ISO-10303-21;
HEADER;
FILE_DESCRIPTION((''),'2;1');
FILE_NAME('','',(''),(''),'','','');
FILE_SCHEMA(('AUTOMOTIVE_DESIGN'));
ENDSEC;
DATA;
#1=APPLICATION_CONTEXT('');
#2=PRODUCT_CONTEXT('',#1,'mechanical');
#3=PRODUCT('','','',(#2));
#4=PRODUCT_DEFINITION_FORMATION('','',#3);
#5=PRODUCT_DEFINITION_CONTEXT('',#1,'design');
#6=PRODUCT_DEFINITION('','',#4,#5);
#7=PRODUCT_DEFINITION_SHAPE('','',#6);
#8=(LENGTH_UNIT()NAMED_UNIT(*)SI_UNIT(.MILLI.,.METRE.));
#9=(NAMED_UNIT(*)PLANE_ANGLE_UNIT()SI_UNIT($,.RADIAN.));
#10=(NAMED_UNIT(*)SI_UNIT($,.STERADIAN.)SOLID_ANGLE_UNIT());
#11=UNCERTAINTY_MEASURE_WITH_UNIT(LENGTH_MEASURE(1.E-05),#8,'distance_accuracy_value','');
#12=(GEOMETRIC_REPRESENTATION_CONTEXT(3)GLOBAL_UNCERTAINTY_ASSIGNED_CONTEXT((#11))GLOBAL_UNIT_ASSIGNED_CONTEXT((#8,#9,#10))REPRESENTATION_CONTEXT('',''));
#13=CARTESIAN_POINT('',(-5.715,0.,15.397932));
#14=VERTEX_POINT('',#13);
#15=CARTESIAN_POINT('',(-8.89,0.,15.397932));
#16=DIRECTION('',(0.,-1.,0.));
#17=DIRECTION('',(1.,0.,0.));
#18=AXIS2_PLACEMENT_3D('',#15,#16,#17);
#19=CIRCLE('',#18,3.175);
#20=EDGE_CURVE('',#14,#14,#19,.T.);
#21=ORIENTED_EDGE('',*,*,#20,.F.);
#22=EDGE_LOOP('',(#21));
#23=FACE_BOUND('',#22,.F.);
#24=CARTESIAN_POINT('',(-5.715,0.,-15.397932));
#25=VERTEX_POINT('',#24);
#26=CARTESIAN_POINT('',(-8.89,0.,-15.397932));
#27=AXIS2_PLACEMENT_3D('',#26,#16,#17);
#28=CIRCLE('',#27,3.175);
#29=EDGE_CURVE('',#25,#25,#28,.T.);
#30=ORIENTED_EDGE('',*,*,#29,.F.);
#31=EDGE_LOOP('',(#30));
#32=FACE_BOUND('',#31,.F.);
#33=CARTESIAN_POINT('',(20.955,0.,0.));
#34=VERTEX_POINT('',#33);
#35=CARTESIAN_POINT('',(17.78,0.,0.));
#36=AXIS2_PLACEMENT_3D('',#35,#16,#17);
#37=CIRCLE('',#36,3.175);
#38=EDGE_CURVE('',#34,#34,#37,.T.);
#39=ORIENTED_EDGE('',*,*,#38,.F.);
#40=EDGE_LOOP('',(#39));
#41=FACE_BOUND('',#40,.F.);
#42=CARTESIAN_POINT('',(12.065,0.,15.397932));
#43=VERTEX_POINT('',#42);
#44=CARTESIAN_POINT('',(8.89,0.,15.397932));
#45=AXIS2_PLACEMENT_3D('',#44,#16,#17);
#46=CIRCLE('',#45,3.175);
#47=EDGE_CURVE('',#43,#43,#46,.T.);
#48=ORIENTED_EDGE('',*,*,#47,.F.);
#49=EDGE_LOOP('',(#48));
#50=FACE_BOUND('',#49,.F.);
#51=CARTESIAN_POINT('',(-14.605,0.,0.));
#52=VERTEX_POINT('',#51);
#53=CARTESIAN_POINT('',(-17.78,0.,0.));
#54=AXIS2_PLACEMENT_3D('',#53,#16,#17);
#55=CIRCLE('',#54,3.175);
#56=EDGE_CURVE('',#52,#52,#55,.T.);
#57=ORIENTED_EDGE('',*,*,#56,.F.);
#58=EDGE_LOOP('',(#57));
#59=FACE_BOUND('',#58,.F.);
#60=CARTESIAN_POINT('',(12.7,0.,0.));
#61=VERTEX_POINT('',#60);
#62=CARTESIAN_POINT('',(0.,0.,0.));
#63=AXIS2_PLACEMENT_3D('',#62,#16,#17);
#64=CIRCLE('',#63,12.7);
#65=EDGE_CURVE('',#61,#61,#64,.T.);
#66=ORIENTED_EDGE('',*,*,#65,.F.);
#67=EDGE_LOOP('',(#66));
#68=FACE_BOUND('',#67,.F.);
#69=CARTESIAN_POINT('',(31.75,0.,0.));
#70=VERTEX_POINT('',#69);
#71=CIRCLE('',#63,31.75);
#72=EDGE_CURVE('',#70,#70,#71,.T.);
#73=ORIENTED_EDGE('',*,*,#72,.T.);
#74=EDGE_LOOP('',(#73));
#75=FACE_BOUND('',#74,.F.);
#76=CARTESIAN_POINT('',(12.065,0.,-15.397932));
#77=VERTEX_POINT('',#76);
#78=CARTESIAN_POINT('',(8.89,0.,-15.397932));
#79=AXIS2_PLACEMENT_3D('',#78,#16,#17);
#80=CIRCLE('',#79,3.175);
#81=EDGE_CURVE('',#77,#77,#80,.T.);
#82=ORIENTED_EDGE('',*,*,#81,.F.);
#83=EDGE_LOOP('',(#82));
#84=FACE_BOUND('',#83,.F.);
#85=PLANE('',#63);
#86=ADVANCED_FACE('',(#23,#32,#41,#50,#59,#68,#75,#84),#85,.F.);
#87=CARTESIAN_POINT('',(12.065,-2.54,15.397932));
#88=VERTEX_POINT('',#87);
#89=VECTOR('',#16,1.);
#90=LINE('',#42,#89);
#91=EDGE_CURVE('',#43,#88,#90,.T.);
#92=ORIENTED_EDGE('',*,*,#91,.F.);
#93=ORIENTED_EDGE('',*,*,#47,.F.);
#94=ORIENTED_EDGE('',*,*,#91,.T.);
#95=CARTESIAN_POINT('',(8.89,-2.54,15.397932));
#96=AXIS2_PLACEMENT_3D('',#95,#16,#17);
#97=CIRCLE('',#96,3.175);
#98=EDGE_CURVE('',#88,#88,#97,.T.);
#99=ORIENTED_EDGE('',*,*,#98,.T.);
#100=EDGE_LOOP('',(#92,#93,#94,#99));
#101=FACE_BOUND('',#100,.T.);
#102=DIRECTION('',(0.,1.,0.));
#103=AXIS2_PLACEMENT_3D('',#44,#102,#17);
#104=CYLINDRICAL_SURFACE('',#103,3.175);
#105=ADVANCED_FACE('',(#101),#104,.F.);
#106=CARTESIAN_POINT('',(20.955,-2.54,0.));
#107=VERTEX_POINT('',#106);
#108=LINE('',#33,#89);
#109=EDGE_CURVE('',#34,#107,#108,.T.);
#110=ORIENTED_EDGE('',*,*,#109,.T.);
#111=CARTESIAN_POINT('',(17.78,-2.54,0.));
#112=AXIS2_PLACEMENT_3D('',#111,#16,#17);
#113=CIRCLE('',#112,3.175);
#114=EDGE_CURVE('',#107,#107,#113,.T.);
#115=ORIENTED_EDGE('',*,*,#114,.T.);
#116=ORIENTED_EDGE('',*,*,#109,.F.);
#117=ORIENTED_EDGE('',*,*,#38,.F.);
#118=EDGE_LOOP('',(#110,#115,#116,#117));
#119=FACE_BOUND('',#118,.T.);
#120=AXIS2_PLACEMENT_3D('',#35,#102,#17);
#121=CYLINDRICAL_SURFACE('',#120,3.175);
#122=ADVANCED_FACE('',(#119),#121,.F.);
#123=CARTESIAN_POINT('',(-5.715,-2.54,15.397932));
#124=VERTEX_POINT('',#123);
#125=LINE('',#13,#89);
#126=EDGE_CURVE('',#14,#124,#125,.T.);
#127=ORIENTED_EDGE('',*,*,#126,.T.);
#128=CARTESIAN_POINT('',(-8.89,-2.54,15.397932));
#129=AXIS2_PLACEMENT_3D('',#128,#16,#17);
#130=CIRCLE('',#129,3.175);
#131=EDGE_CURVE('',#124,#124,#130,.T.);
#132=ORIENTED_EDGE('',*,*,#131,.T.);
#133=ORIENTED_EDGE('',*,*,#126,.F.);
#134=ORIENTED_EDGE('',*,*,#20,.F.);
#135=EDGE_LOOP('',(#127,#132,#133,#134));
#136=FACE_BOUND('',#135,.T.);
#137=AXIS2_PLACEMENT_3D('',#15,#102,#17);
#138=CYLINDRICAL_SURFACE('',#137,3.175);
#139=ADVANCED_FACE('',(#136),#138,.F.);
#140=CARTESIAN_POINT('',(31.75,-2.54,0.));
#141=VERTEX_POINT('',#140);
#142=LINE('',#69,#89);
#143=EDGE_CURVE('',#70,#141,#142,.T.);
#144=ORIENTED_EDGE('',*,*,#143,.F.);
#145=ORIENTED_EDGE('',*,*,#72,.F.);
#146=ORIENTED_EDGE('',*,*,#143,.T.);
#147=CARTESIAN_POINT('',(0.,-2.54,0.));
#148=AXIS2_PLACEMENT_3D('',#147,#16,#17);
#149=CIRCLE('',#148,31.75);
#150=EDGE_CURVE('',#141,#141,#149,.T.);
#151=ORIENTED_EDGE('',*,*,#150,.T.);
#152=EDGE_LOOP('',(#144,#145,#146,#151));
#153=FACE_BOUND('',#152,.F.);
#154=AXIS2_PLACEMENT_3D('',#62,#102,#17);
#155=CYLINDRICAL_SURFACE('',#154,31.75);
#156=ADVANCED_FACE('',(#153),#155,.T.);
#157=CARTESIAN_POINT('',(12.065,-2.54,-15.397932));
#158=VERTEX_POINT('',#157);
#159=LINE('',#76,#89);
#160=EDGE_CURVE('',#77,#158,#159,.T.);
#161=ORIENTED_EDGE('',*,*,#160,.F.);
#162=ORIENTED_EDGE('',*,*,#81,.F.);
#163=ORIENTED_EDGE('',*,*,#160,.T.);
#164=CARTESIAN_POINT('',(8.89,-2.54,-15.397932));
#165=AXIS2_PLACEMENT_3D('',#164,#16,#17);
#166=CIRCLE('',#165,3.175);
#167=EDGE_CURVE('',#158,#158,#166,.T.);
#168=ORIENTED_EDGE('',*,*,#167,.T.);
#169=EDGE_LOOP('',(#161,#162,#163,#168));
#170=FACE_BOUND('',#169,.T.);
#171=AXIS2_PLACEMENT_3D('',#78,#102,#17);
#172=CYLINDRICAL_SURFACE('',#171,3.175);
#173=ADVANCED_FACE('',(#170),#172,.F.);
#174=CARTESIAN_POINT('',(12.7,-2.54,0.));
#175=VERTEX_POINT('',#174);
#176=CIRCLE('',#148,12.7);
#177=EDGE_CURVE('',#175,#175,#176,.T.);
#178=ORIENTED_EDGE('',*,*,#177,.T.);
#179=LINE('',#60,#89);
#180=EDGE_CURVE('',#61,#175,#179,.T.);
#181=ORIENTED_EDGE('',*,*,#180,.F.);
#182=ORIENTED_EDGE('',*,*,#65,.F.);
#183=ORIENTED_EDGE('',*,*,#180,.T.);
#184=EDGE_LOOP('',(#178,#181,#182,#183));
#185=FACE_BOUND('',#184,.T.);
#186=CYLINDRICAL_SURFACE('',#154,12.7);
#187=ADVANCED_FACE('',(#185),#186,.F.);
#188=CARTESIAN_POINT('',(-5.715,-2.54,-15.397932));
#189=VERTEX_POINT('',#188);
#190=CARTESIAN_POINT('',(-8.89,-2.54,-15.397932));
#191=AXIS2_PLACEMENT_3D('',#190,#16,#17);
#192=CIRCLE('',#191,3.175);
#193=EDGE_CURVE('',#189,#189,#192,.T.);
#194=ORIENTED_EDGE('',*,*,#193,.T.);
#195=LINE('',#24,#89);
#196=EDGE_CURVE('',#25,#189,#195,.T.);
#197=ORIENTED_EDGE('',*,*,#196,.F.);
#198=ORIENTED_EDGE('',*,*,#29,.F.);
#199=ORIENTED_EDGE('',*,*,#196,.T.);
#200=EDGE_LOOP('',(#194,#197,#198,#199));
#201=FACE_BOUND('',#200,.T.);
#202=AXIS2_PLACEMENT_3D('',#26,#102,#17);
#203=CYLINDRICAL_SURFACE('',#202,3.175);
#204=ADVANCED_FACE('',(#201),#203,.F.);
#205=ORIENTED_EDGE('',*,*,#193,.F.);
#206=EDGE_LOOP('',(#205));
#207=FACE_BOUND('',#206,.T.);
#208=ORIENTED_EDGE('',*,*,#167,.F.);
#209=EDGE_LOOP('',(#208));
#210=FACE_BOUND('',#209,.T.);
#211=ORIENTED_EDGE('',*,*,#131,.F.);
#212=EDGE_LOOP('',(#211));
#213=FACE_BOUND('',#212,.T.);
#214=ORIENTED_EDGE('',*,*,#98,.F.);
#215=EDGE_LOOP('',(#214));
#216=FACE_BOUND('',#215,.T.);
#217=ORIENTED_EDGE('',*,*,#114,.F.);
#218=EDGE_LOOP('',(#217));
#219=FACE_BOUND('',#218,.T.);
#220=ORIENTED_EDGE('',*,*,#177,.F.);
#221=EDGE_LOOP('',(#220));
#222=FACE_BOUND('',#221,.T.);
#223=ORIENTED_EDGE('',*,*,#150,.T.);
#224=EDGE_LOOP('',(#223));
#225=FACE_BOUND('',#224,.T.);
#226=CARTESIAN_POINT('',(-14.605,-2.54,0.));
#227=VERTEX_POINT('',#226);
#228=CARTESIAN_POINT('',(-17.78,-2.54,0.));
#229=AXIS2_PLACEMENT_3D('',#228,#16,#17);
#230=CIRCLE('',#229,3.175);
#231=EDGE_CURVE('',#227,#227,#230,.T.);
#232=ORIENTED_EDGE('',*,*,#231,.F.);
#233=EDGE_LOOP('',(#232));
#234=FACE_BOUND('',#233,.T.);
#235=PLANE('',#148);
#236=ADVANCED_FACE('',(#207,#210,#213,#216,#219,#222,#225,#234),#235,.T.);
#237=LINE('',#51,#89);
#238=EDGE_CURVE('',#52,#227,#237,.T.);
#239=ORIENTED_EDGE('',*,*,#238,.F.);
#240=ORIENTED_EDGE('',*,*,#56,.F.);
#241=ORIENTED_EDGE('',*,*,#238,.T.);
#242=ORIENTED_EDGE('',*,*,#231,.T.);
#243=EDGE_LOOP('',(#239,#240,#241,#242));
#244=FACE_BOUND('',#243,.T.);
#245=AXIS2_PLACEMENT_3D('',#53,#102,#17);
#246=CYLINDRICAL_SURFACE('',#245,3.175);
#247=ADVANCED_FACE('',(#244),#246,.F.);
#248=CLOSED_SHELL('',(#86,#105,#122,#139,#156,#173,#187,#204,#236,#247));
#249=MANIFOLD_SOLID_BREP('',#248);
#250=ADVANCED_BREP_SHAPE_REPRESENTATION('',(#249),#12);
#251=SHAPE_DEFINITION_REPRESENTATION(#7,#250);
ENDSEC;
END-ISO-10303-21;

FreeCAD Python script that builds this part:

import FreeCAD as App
import Part
import Sketcher
from FreeCAD import Vector
Q = App.Units.Quantity

doc = App.newDocument("Part")
body = doc.addObject("PartDesign::Body", "Body")

sketch1 = doc.addObject("Sketcher::SketchObject", "Sketch")
body.addObject(sketch1)
sketch1.AttachmentSupport = (doc.XZ_Plane, [""])
sketch1.MapMode = "FlatFace"
sketch1.addGeometry(Part.Circle(Vector(0, 0, 0), Vector(0, 0, 1), 31.8), False)
sketch1.addGeometry(Part.Circle(Vector(-8.9, -15.4, 0), Vector(0, 0, 1), 3.2), False)
sketch1.addGeometry(Part.Circle(Vector(8.9, -15.4, 0), Vector(0, 0, 1), 3.2), False)
sketch1.addGeometry(Part.Circle(Vector(-17.8, 0, 0), Vector(0, 0, 1), 3.2), False)
sketch1.addGeometry(Part.Circle(Vector(-8.9, 15.4, 0), Vector(0, 0, 1), 3.2), False)
sketch1.addGeometry(Part.Circle(Vector(0, 0, 0), Vector(0, 0, 1), 12.7), False)
sketch1.addGeometry(Part.Circle(Vector(17.8, 0, 0), Vector(0, 0, 1), 3.2), False)
sketch1.addGeometry(Part.Circle(Vector(8.9, 15.4, 0), Vector(0, 0, 1), 3.2), False)
sketch1.addConstraint(Sketcher.Constraint("Coincident", 0, 3, -1, 1))
sketch1.addConstraint(Sketcher.Constraint("Coincident", 5, 3, -1, 1))
sketch1.addConstraint(Sketcher.Constraint("Equal", 1, 2))
sketch1.addConstraint(Sketcher.Constraint("Equal", 2, 3))
sketch1.addConstraint(Sketcher.Constraint("Equal", 3, 4))
sketch1.addConstraint(Sketcher.Constraint("Equal", 4, 6))
sketch1.addConstraint(Sketcher.Constraint("Equal", 6, 7))
sketch1.addConstraint(Sketcher.Constraint("Symmetric", 2, 3, 4, 3, -1, 1))
sketch1.addConstraint(Sketcher.Constraint("Symmetric", 3, 3, 6, 3, -1, 1))
sketch1.addConstraint(Sketcher.Constraint("Symmetric", 1, 3, 7, 3, -1, 1))
sketch1.addConstraint(Sketcher.Constraint("Symmetric", 1, 3, 2, 3, -2))
sketch1.addConstraint(Sketcher.Constraint("PointOnObject", 3, 3, -1))
sketch1.addConstraint(Sketcher.Constraint("Diameter", 5, Q("1 in")))
sketch1.addConstraint(Sketcher.Constraint("Diameter", 0, Q("2.5 in")))
sketch1.addConstraint(Sketcher.Constraint("Diameter", 1, Q("0.25 in")))
sketch1.addConstraint(Sketcher.Constraint("DistanceX", 3, 3, -1, 1, Q("0.7 in")))
sketch1.addConstraint(Sketcher.Constraint("DistanceX", 1, 3, 2, 3, Q("0.7 in")))
sketch1.addConstraint(Sketcher.Constraint("DistanceY", 1, 3, -1, 1, Q("15.397932 mm")))
pad1 = doc.addObject("PartDesign::Pad", "Pad")
body.addObject(pad1)
pad1.Profile = sketch1
pad1.Length = Q("0.1 in")

doc.recompute()
